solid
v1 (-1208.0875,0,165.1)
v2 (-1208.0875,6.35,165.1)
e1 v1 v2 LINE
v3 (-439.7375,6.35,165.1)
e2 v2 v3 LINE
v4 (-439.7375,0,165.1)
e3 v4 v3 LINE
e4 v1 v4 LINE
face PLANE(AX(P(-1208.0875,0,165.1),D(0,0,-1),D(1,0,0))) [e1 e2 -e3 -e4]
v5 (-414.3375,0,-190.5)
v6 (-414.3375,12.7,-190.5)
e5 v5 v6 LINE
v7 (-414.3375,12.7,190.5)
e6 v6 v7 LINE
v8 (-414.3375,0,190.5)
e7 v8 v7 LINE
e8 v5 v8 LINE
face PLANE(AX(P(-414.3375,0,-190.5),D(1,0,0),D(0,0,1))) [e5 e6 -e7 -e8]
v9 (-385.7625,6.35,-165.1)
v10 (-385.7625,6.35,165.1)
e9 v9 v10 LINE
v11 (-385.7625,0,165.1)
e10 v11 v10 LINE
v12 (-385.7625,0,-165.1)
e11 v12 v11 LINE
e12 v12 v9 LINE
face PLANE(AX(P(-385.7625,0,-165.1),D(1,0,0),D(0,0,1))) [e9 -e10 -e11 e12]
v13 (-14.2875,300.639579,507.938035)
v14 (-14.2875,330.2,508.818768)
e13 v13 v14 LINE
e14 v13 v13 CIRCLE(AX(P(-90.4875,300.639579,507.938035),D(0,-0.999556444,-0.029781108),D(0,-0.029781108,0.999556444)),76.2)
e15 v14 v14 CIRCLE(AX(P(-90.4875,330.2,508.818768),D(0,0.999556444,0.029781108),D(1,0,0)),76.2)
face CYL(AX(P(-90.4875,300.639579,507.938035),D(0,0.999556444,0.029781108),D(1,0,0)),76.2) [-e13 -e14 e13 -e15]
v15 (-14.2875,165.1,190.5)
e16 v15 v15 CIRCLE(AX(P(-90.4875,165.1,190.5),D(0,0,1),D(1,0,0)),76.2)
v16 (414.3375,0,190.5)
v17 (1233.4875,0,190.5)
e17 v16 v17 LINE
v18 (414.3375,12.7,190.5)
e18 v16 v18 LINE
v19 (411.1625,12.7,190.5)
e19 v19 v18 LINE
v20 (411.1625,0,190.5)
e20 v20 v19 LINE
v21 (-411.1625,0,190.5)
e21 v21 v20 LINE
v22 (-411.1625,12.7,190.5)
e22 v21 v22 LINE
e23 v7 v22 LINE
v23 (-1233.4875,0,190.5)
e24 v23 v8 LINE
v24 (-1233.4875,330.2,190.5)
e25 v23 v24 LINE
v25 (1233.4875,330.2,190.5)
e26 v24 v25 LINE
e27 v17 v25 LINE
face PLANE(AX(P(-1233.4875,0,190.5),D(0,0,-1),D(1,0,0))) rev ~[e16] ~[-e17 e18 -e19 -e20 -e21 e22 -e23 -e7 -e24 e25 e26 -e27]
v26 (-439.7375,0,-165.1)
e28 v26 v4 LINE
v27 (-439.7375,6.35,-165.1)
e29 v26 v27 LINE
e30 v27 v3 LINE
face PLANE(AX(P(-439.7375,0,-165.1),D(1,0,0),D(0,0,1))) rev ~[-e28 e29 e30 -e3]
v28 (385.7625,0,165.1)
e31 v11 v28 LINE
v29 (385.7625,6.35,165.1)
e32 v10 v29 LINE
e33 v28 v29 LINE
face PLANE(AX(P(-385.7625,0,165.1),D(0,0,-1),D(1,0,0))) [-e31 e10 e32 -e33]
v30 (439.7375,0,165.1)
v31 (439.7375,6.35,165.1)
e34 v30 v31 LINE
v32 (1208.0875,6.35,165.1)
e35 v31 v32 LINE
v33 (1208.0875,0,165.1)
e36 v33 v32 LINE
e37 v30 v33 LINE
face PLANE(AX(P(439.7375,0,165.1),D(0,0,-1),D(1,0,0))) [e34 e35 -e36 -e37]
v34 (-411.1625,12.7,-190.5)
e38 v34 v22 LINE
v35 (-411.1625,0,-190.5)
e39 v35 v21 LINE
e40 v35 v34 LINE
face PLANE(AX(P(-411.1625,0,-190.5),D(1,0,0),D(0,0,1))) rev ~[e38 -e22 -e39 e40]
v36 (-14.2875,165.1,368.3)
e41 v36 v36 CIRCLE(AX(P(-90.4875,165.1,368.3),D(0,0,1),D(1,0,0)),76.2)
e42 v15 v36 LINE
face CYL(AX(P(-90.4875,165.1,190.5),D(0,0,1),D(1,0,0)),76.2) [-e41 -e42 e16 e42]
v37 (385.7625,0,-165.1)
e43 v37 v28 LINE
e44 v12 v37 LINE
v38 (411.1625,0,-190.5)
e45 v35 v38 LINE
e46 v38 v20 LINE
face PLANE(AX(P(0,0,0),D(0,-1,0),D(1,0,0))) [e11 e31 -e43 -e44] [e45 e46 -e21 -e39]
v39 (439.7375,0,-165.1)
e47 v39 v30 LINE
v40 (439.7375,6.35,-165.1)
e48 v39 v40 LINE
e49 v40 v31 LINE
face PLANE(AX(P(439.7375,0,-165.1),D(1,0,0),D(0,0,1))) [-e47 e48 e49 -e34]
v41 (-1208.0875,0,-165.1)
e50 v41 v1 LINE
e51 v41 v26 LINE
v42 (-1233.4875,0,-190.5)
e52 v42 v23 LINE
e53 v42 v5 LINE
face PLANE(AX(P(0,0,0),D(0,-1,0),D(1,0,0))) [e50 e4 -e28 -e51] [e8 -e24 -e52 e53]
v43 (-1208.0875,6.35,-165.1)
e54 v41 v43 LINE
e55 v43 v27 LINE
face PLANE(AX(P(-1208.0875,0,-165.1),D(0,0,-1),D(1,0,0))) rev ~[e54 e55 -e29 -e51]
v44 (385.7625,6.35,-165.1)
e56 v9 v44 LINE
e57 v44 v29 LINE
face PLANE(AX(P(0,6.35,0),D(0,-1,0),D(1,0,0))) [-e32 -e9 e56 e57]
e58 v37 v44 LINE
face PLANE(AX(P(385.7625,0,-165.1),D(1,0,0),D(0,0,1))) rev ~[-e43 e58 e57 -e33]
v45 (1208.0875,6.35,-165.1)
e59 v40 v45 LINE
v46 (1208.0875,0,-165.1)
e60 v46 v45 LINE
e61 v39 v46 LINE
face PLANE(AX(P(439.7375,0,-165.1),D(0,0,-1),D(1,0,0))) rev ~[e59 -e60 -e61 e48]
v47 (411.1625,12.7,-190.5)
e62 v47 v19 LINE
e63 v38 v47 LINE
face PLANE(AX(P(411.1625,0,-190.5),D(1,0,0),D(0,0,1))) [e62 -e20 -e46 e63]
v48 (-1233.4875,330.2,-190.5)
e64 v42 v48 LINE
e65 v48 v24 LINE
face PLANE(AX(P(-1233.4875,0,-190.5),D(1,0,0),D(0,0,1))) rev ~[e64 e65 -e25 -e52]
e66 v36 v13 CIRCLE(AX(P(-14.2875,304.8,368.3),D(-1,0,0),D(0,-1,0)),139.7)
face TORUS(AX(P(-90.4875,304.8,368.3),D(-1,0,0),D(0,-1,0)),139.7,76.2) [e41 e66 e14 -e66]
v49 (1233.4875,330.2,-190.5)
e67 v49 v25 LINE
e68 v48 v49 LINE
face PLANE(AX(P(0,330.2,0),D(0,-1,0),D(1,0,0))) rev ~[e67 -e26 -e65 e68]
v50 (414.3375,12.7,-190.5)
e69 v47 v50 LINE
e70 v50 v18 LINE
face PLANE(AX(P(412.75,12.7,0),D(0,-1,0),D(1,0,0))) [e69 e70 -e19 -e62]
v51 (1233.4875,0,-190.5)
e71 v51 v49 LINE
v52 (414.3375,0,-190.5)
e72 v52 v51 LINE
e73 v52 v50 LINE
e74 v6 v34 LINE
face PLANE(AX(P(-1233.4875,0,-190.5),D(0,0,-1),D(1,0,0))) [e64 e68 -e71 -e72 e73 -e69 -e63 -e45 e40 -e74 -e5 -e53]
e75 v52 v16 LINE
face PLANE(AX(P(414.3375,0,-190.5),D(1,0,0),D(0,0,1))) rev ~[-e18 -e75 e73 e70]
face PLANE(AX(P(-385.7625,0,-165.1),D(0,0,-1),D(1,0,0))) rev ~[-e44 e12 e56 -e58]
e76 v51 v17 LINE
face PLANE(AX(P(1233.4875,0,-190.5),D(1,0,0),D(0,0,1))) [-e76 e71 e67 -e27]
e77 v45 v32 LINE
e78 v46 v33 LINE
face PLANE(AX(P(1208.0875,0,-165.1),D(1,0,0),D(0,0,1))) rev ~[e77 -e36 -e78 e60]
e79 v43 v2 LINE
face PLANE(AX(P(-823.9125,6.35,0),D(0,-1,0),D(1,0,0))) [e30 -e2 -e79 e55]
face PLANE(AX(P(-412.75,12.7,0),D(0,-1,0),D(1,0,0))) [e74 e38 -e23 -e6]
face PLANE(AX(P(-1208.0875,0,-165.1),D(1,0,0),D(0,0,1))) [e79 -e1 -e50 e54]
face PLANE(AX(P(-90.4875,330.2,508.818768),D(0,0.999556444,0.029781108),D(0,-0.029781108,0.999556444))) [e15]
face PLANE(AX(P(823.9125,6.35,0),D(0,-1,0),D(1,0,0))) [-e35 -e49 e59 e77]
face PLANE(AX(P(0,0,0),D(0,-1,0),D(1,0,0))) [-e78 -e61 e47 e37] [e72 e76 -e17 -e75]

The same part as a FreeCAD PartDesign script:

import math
import FreeCAD as App
import Part
import Sketcher
from FreeCAD import Vector
Q = App.Units.Quantity

doc = App.newDocument("Part")
body = doc.addObject("PartDesign::Body", "Body")

# Sketch on XZ plane
sketch1 = doc.addObject("Sketcher::SketchObject", "Sketch")
body.addObject(sketch1)
sketch1.AttachmentSupport = (doc.XZ_Plane, [""])
sketch1.MapMode = "FlatFace"
sketch1.addGeometry(Part.LineSegment(Vector(-1233, 190, 0), Vector(-1233, -190, 0)), False)
sketch1.addGeometry(Part.LineSegment(Vector(-1233, -190, 0), Vector(1233, -190, 0)), False)
sketch1.addGeometry(Part.LineSegment(Vector(1233, -190, 0), Vector(1233, 190, 0)), False)
sketch1.addGeometry(Part.LineSegment(Vector(1233, 190, 0), Vector(-1233, 190, 0)), False)
sketch1.addConstraint(Sketcher.Constraint("Coincident", 0, 2, 1, 1))
sketch1.addConstraint(Sketcher.Constraint("Coincident", 1, 2, 2, 1))
sketch1.addConstraint(Sketcher.Constraint("Coincident", 2, 2, 3, 1))
sketch1.addConstraint(Sketcher.Constraint("Coincident", 3, 2, 0, 1))
sketch1.addConstraint(Sketcher.Constraint("Vertical", 0))
sketch1.addConstraint(Sketcher.Constraint("Horizontal", 1))
sketch1.addConstraint(Sketcher.Constraint("Vertical", 2))
sketch1.addConstraint(Sketcher.Constraint("Horizontal", 3))
sketch1.addConstraint(Sketcher.Constraint("Symmetric", 0, 2, 2, 2, -1, 1))
sketch1.addConstraint(Sketcher.Constraint("DistanceY", 0, 2, 0, 1, Q("15 in")))
sketch1.addConstraint(Sketcher.Constraint("DistanceX", 1, 1, 1, 2, Q("97.125 in")))
pad1 = doc.addObject("PartDesign::Pad", "Pad")
body.addObject(pad1)
pad1.Profile = sketch1
pad1.Length = Q("13 in")
pad1.Reversed = True

# Sketch on XZ plane
sketch2 = doc.addObject("Sketcher::SketchObject", "Sketch001")
body.addObject(sketch2)
sketch2.AttachmentSupport = (doc.XZ_Plane, [""])
sketch2.MapMode = "FlatFace"
sketch2.addGeometry(Part.LineSegment(Vector(-414.3, 190.5, 0), Vector(-414.3, -190.5, 0)), False)
sketch2.addGeometry(Part.LineSegment(Vector(-414.3, -190.5, 0), Vector(-411.2, -190.5, 0)), False)
sketch2.addGeometry(Part.LineSegment(Vector(-411.2, -190.5, 0), Vector(-411.2, 190.5, 0)), False)
sketch2.addGeometry(Part.LineSegment(Vector(-411.2, 190.5, 0), Vector(-414.3, 190.5, 0)), False)
sketch2.addGeometry(Part.LineSegment(Vector(411.2, 190.5, 0), Vector(411.2, -190.5, 0)), False)
sketch2.addGeometry(Part.LineSegment(Vector(411.2, -190.5, 0), Vector(414.3, -190.5, 0)), False)
sketch2.addGeometry(Part.LineSegment(Vector(414.3, -190.5, 0), Vector(414.3, 190.5, 0)), False)
sketch2.addGeometry(Part.LineSegment(Vector(414.3, 190.5, 0), Vector(411.2, 190.5, 0)), False)
sketch2.addConstraint(Sketcher.Constraint("Coincident", 0, 2, 1, 1))
sketch2.addConstraint(Sketcher.Constraint("Coincident", 1, 2, 2, 1))
sketch2.addConstraint(Sketcher.Constraint("Coincident", 2, 2, 3, 1))
sketch2.addConstraint(Sketcher.Constraint("Coincident", 3, 2, 0, 1))
sketch2.addConstraint(Sketcher.Constraint("Coincident", 4, 2, 5, 1))
sketch2.addConstraint(Sketcher.Constraint("Coincident", 5, 2, 6, 1))
sketch2.addConstraint(Sketcher.Constraint("Coincident", 6, 2, 7, 1))
sketch2.addConstraint(Sketcher.Constraint("Coincident", 7, 2, 4, 1))
sketch2.addConstraint(Sketcher.Constraint("Vertical", 0))
sketch2.addConstraint(Sketcher.Constraint("Horizontal", 1))
sketch2.addConstraint(Sketcher.Constraint("Vertical", 2))
sketch2.addConstraint(Sketcher.Constraint("Horizontal", 3))
sketch2.addConstraint(Sketcher.Constraint("Vertical", 4))
sketch2.addConstraint(Sketcher.Constraint("Horizontal", 5))
sketch2.addConstraint(Sketcher.Constraint("Vertical", 6))
sketch2.addConstraint(Sketcher.Constraint("Horizontal", 7))
sketch2.addConstraint(Sketcher.Constraint("Symmetric", 2, 2, 4, 2, -1, 1))
sketch2.addConstraint(Sketcher.Constraint("Symmetric", 0, 2, 6, 2, -1, 1))
sketch2.addConstraint(Sketcher.Constraint("Horizontal", 1, 2, 4, 2))
sketch2.addConstraint(Sketcher.Constraint("DistanceY", 0, 2, 0, 1, Q("15 in")))
sketch2.addConstraint(Sketcher.Constraint("DistanceX", 0, 2, 4, 2, Q("32.5 in")))
sketch2.addConstraint(Sketcher.Constraint("DistanceX", 1, 1, 1, 2, Q("0.125 in")))
pocket1 = doc.addObject("PartDesign::Pocket", "Pocket")
body.addObject(pocket1)
pocket1.Profile = sketch2
pocket1.Length = Q("0.5 in")

# Sketch on XZ plane
sketch3 = doc.addObject("Sketcher::SketchObject", "Sketch002")
body.addObject(sketch3)
sketch3.AttachmentSupport = (doc.XZ_Plane, [""])
sketch3.MapMode = "FlatFace"
sketch3.addGeometry(Part.LineSegment(Vector(-1208, 165, 0), Vector(-1208, -165, 0)), False)
sketch3.addGeometry(Part.LineSegment(Vector(-1208, -165, 0), Vector(-440, -165, 0)), False)
sketch3.addGeometry(Part.LineSegment(Vector(-440, -165, 0), Vector(-440, 165, 0)), False)
sketch3.addGeometry(Part.LineSegment(Vector(-440, 165, 0), Vector(-1208, 165, 0)), False)
sketch3.addGeometry(Part.LineSegment(Vector(-386, 165, 0), Vector(-386, -165, 0)), False)
sketch3.addGeometry(Part.LineSegment(Vector(-386, -165, 0), Vector(386, -165, 0)), False)
sketch3.addGeometry(Part.LineSegment(Vector(386, -165, 0), Vector(386, 165, 0)), False)
sketch3.addGeometry(Part.LineSegment(Vector(386, 165, 0), Vector(-386, 165, 0)), False)
sketch3.addGeometry(Part.LineSegment(Vector(440, 165, 0), Vector(440, -165, 0)), False)
sketch3.addGeometry(Part.LineSegment(Vector(440, -165, 0), Vector(1208, -165, 0)), False)
sketch3.addGeometry(Part.LineSegment(Vector(1208, -165, 0), Vector(1208, 165, 0)), False)
sketch3.addGeometry(Part.LineSegment(Vector(1208, 165, 0), Vector(440, 165, 0)), False)
sketch3.addConstraint(Sketcher.Constraint("Coincident", 0, 2, 1, 1))
sketch3.addConstraint(Sketcher.Constraint("Coincident", 1, 2, 2, 1))
sketch3.addConstraint(Sketcher.Constraint("Coincident", 2, 2, 3, 1))
sketch3.addConstraint(Sketcher.Constraint("Coincident", 3, 2, 0, 1))
sketch3.addConstraint(Sketcher.Constraint("Coincident", 4, 2, 5, 1))
sketch3.addConstraint(Sketcher.Constraint("Coincident", 5, 2, 6, 1))
sketch3.addConstraint(Sketcher.Constraint("Coincident", 6, 2, 7, 1))
sketch3.addConstraint(Sketcher.Constraint("Coincident", 7, 2, 4, 1))
sketch3.addConstraint(Sketcher.Constraint("Coincident", 8, 2, 9, 1))
sketch3.addConstraint(Sketcher.Constraint("Coincident", 9, 2, 10, 1))
sketch3.addConstraint(Sketcher.Constraint("Coincident", 10, 2, 11, 1))
sketch3.addConstraint(Sketcher.Constraint("Coincident", 11, 2, 8, 1))
sketch3.addConstraint(Sketcher.Constraint("Vertical", 0))
sketch3.addConstraint(Sketcher.Constraint("Horizontal", 1))
sketch3.addConstraint(Sketcher.Constraint("Vertical", 2))
sketch3.addConstraint(Sketcher.Constraint("Horizontal", 3))
sketch3.addConstraint(Sketcher.Constraint("Vertical", 4))
sketch3.addConstraint(Sketcher.Constraint("Horizontal", 5))
sketch3.addConstraint(Sketcher.Constraint("Vertical", 6))
sketch3.addConstraint(Sketcher.Constraint("Horizontal", 7))
sketch3.addConstraint(Sketcher.Constraint("Vertical", 8))
sketch3.addConstraint(Sketcher.Constraint("Horizontal", 9))
sketch3.addConstraint(Sketcher.Constraint("Vertical", 10))
sketch3.addConstraint(Sketcher.Constraint("Horizontal", 11))
sketch3.addConstraint(Sketcher.Constraint("Symmetric", 4, 2, 6, 2, -1, 1))
sketch3.addConstraint(Sketcher.Constraint("Symmetric", 2, 2, 8, 2, -1, 1))
sketch3.addConstraint(Sketcher.Constraint("Symmetric", 0, 2, 10, 2, -1, 1))
sketch3.addConstraint(Sketcher.Constraint("Horizontal", 1, 2, 4, 2))
sketch3.addConstraint(Sketcher.Constraint("Horizontal", 3, 2, 6, 2))
sketch3.addConstraint(Sketcher.Constraint("DistanceY", 0, 2, 0, 1, Q("13 in")))
sketch3.addConstraint(Sketcher.Constraint("DistanceX", 1, 1, 1, 2, Q("30.25 in")))
sketch3.addConstraint(Sketcher.Constraint("DistanceX", 1, 2, 5, 2, Q("32.5 in")))
sketch3.addConstraint(Sketcher.Constraint("DistanceX", 5, 1, 5, 2, Q("30.375 in")))
pocket2 = doc.addObject("PartDesign::Pocket", "Pocket001")
body.addObject(pocket2)
pocket2.Profile = sketch3
pocket2.Length = Q("0.25 in")

# Sketch on XY plane
sketch4 = doc.addObject("Sketcher::SketchObject", "Sketch003")
body.addObject(sketch4)
sketch4.AttachmentSupport = (doc.XY_Plane, [""])
sketch4.MapMode = "FlatFace"
sketch4.AttachmentOffset = App.Placement(Vector(0, 0, 7.5 * 25.4), App.Rotation())
sketch4.addGeometry(Part.Circle(Vector(-90, 165, 0), Vector(0, 0, 1), 76), False)
sketch4.addConstraint(Sketcher.Constraint("Diameter", 0, Q("6 in")))
sketch4.addConstraint(Sketcher.Constraint("DistanceY", -1, 1, 0, 3, Q("6.5 in")))
sketch4.addConstraint(Sketcher.Constraint("DistanceX", 0, 3, -1, 1, Q("3.5625 in")))

# Sketch on YZ plane
sketch5 = doc.addObject("Sketcher::SketchObject", "Sketch004")
body.addObject(sketch5)
sketch5.AttachmentSupport = (doc.YZ_Plane, [""])
sketch5.MapMode = "FlatFace"
sketch5.AttachmentOffset = App.Placement(Vector(0, 0, -3.5625 * 25.4), App.Rotation())
sketch5.addGeometry(Part.LineSegment(Vector(165, 190, 0), Vector(165, 368, 0)), False)
sketch5.addGeometry(Part.ArcOfCircle(Part.Circle(Vector(305, 368, 0), Vector(0, 0, 1), 140), math.radians(92), math.radians(180)), False)
sketch5.addGeometry(Part.LineSegment(Vector(301, 508, 0), Vector(330, 509, 0)), False)
sketch5.addConstraint(Sketcher.Constraint("Tangent", 0, 2, 1, 2))
sketch5.addConstraint(Sketcher.Constraint("Tangent", 1, 1, 2, 1))
sketch5.addConstraint(Sketcher.Constraint("Vertical", 0))
sketch5.addConstraint(Sketcher.Constraint("Radius", 1, Q("5.5 in")))
sketch5.addConstraint(Sketcher.Constraint("DistanceY", 0, 1, 0, 2, Q("7 in")))
sketch5.addConstraint(Sketcher.Constraint("DistanceX", -1, 1, 1, 3, Q("12 in")))
sketch5.addConstraint(Sketcher.Constraint("DistanceX", -1, 1, 2, 2, Q("13 in")))
sketch5.addConstraint(Sketcher.Constraint("DistanceY", -1, 1, 1, 3, Q("14.5 in")))
sketch5.addConstraint(Sketcher.Constraint("Distance", 2, Q("29.573538 mm")))
doc.recompute()

additivepipe = doc.addObject("PartDesign::AdditivePipe", "AdditivePipe")
body.addObject(additivepipe)
additivepipe.Profile = sketch4
additivepipe.Spine = (sketch5, ["Edge1", "Edge2", "Edge3"])

doc.recompute()
